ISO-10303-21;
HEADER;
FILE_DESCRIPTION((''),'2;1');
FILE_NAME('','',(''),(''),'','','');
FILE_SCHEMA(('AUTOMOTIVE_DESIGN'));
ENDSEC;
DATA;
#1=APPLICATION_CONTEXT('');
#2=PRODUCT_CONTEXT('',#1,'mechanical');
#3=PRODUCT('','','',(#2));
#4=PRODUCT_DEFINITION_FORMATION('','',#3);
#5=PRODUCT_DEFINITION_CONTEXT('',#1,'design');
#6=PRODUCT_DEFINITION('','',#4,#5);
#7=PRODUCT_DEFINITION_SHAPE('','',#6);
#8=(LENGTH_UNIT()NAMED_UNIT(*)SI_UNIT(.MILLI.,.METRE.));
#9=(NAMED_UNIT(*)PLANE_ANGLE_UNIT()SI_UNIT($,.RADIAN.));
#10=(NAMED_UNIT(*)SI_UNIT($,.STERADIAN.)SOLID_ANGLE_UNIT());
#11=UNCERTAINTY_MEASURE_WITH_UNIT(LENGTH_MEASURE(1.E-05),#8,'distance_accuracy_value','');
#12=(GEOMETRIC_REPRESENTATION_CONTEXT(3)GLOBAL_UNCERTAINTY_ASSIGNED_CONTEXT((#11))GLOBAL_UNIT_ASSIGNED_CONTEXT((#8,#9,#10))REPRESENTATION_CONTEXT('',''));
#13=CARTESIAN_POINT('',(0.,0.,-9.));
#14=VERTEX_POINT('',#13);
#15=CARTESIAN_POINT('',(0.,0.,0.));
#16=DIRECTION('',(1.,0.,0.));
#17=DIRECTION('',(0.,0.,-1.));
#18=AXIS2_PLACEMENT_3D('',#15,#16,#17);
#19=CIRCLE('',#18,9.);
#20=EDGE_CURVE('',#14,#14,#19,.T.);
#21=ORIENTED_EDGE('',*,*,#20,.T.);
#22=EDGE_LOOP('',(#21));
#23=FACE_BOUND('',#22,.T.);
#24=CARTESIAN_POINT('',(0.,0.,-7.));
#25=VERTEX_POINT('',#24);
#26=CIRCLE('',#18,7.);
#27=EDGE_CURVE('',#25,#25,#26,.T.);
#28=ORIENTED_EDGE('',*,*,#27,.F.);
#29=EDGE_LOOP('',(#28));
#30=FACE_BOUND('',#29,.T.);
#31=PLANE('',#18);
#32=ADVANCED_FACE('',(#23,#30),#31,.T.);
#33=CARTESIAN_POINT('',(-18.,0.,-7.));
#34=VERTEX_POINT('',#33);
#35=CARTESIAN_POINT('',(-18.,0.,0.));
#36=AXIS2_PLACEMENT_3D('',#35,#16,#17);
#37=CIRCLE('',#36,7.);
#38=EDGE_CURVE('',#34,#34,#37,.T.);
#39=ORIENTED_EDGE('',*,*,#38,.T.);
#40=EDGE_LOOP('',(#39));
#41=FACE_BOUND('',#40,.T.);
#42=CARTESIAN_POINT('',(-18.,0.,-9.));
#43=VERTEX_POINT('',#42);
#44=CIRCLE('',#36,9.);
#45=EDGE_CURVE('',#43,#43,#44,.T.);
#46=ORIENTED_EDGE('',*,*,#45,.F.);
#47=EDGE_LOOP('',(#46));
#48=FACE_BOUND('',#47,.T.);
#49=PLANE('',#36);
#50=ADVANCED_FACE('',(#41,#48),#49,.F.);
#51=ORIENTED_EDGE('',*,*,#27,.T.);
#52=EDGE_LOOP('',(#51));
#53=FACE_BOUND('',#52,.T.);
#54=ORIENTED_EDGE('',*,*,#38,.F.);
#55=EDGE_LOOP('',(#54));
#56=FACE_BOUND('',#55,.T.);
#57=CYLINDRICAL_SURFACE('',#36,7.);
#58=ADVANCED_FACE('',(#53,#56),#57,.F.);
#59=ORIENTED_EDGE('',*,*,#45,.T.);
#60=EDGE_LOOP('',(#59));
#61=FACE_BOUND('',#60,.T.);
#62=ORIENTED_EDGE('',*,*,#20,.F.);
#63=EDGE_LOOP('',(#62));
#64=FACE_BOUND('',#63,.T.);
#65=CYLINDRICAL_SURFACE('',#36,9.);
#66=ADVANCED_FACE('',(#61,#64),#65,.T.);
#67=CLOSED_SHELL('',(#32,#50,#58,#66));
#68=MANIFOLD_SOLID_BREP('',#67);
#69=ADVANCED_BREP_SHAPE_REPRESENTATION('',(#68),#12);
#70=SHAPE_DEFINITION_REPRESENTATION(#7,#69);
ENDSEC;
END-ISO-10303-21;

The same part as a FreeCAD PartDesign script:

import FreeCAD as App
import Part
import Sketcher
from FreeCAD import Vector
Q = App.Units.Quantity

doc = App.newDocument("Part")
body = doc.addObject("PartDesign::Body", "Body")

sketch1 = body.newObject("Sketcher::SketchObject", "Sketch")
sketch1.AttachmentSupport = (doc.getObject("YZ_Plane"), [""])
sketch1.MapMode = "FlatFace"
sketch1.addGeometry([
    Part.Circle(Vector(0, 0, 0), Vector(0, 0, 1), 9),
    Part.Circle(Vector(0, 0, 0), Vector(0, 0, 1), 7),
], False)
sketch1.addConstraint([
    Sketcher.Constraint("Coincident", 0, 3, -1, 1),
    Sketcher.Constraint("Coincident", 1, 3, -1, 1),
    Sketcher.Constraint("Diameter", 0, Q("18 mm")),
    Sketcher.Constraint("Diameter", 1, Q("14 mm")),
])
pad1 = body.newObject("PartDesign::Pad", "Pad")
pad1.Profile = sketch1
pad1.Length = 18
pad1.Reversed = True

doc.recompute()
